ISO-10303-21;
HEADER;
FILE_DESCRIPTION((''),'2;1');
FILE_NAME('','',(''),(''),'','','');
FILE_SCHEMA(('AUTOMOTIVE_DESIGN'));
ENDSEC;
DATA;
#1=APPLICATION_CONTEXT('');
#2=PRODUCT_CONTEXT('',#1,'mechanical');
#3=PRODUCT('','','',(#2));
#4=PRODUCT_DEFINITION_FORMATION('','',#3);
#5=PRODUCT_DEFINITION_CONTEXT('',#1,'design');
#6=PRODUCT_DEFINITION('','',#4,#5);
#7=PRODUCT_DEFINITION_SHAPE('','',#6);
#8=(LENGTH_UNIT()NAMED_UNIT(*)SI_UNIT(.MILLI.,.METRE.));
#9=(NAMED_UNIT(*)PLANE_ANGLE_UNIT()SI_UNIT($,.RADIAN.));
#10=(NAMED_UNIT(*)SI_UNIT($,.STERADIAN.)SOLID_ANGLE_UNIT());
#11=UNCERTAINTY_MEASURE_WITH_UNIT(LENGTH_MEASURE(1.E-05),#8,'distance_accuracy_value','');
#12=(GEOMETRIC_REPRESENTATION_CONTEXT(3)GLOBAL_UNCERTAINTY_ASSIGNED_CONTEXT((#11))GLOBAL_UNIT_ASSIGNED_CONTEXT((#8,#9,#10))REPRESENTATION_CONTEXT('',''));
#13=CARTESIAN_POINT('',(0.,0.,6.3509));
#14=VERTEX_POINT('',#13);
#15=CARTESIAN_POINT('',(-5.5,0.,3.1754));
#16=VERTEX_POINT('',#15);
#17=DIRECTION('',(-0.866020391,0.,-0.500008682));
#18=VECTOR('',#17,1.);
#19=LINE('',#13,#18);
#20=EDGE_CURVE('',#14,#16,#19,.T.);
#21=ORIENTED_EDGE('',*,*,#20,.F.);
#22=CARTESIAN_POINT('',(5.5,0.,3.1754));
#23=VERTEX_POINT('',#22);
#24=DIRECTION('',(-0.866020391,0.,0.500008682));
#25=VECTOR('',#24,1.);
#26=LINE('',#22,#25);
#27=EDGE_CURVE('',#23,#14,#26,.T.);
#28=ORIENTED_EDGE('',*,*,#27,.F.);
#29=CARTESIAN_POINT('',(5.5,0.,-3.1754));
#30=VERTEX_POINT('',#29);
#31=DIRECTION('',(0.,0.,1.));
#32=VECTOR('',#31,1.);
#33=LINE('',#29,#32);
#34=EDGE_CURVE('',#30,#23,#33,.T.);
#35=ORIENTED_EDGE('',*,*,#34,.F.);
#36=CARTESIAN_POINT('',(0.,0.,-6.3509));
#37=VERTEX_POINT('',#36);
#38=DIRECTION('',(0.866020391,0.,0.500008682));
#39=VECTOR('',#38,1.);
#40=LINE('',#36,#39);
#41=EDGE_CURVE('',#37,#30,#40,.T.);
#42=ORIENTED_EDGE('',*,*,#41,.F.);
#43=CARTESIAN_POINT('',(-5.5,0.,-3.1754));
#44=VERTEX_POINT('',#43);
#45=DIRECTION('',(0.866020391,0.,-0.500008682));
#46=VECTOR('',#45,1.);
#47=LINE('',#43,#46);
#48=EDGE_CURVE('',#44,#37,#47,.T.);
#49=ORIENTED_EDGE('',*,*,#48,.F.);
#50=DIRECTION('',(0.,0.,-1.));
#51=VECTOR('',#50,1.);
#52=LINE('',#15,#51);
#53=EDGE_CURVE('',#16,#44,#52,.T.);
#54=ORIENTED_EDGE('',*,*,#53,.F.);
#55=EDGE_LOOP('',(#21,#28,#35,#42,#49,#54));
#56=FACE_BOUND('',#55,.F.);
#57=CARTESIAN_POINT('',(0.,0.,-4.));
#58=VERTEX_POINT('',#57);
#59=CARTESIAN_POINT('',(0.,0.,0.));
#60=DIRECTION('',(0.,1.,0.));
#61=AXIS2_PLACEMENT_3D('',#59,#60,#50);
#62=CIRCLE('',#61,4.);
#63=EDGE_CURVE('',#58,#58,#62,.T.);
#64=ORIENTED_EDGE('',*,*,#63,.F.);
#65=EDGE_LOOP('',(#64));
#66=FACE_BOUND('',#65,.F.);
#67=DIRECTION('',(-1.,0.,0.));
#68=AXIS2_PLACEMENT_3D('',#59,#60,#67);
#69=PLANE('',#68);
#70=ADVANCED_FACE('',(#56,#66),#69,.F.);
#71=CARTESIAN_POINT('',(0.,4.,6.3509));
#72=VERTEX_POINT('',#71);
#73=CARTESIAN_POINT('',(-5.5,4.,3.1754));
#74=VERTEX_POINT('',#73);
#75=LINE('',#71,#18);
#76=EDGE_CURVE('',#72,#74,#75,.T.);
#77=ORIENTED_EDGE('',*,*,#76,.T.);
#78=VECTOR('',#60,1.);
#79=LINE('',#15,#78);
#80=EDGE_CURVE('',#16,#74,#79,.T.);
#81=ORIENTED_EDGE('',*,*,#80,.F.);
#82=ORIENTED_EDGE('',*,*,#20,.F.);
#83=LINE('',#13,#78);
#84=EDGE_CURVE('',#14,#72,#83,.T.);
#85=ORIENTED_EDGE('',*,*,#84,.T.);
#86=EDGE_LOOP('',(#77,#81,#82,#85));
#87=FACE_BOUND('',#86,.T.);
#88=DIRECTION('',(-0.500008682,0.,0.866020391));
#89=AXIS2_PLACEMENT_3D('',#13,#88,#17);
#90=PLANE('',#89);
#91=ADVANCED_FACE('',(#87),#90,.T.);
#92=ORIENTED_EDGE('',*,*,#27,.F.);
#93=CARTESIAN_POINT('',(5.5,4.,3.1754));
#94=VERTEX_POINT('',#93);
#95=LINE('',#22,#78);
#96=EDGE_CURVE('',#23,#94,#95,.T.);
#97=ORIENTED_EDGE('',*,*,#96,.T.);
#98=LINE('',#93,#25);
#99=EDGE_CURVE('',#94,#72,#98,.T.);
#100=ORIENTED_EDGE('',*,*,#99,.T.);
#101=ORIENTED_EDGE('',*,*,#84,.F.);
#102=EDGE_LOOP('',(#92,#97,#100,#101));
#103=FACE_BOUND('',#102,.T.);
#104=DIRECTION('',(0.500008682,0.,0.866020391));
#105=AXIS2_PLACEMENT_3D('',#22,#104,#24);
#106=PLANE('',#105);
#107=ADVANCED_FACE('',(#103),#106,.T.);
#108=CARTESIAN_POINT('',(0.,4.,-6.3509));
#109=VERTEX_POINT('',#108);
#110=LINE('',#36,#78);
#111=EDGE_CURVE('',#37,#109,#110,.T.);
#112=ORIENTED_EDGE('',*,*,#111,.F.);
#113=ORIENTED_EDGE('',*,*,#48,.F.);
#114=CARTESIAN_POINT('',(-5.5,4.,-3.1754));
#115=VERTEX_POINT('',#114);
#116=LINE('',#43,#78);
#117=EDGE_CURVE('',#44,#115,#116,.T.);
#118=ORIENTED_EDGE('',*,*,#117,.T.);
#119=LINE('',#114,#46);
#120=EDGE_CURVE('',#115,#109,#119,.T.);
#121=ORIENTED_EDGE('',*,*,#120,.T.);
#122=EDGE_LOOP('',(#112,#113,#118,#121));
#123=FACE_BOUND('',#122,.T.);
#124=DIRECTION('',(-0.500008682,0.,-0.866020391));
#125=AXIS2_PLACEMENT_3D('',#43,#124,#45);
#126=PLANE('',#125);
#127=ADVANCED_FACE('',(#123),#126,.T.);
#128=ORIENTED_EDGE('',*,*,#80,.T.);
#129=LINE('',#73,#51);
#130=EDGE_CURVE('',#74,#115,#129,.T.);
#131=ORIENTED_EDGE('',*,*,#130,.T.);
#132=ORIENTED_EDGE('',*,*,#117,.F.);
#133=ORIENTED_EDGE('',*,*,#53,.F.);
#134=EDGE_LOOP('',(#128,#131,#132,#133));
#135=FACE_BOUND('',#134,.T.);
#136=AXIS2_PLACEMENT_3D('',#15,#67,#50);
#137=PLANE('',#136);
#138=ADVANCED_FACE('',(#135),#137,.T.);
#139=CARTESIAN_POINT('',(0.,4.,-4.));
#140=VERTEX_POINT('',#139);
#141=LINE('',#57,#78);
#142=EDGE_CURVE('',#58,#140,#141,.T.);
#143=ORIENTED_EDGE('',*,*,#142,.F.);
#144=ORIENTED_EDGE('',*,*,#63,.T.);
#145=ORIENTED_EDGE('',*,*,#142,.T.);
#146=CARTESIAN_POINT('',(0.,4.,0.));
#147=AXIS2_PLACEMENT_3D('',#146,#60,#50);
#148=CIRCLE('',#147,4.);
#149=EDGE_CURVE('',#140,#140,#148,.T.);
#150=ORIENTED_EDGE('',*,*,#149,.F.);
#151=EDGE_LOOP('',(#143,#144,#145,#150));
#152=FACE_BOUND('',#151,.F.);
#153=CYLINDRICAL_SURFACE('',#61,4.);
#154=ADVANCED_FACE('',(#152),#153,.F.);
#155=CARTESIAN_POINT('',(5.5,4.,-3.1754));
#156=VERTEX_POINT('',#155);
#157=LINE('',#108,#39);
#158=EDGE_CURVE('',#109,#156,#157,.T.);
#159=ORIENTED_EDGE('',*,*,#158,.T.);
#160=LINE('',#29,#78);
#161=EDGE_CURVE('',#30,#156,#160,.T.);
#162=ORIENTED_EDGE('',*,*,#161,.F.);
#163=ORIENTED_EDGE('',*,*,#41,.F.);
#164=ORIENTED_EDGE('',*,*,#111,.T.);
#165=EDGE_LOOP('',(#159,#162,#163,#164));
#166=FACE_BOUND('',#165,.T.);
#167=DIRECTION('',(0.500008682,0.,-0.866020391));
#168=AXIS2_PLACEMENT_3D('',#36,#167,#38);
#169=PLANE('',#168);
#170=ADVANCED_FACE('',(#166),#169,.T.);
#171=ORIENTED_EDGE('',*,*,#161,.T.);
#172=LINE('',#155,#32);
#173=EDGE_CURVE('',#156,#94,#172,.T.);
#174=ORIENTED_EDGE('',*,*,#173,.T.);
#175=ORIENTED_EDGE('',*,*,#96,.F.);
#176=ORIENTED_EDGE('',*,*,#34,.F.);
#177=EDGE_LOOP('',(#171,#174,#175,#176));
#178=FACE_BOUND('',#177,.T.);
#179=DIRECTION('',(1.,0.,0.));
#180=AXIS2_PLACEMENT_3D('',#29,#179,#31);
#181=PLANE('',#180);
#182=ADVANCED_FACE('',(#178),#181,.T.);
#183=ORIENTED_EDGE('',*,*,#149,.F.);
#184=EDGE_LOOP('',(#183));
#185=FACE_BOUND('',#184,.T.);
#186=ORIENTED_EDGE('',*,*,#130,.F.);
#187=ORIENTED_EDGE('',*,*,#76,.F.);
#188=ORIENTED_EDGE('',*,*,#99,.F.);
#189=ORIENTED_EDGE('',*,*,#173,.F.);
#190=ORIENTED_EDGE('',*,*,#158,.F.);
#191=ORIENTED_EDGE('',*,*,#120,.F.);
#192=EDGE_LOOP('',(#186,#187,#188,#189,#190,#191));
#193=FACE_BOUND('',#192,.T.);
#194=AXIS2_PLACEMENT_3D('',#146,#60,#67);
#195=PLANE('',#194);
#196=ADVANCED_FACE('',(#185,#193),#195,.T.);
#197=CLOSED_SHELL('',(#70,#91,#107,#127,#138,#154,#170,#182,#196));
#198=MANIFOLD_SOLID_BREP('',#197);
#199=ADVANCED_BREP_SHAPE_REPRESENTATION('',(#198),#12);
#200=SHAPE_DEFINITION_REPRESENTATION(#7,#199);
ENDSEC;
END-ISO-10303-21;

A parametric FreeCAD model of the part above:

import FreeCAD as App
import Part
import Sketcher
from FreeCAD import Vector
Q = App.Units.Quantity

doc = App.newDocument("Part")
params = doc.addObject("Spreadsheet::Sheet", "Params")
for row, (alias, value) in enumerate([
    ("pad1_length", "4 mm"),
    ("sketch2_diameter", "8 mm"),
    ("hole_diameter", "8 mm"),
], start=1):
    params.set(f"A{row}", alias)
    params.set(f"B{row}", "=" + value)
    params.setAlias(f"B{row}", alias)

body = doc.addObject("PartDesign::Body", "Body")

sketch1 = body.newObject("Sketcher::SketchObject", "Sketch")
sketch1.AttachmentSupport = (doc.getObject("XZ_Plane"), [""])
sketch1.MapMode = "FlatFace"
sketch1.addGeometry([
    Part.LineSegment(Vector(0, 6, 0), Vector(6, 3, 0)),
    Part.LineSegment(Vector(6, 3, 0), Vector(6, -3, 0)),
    Part.LineSegment(Vector(6, -3, 0), Vector(0, -6, 0)),
    Part.LineSegment(Vector(0, -6, 0), Vector(-6, -3, 0)),
    Part.LineSegment(Vector(-6, -3, 0), Vector(-6, 3, 0)),
    Part.LineSegment(Vector(-6, 3, 0), Vector(0, 6, 0)),
], False)
sketch1.addConstraint([
    Sketcher.Constraint("Coincident", 0, 2, 1, 1),
    Sketcher.Constraint("Coincident", 1, 2, 2, 1),
    Sketcher.Constraint("Coincident", 2, 2, 3, 1),
    Sketcher.Constraint("Coincident", 3, 2, 4, 1),
    Sketcher.Constraint("Coincident", 4, 2, 5, 1),
    Sketcher.Constraint("Coincident", 5, 2, 0, 1),
    Sketcher.Constraint("Vertical", 1),
    Sketcher.Constraint("Vertical", 4),
    Sketcher.Constraint("Symmetric", 0, 2, 3, 2, -1, 1),
    Sketcher.Constraint("Symmetric", 2, 2, 5, 2, -1, 1),
    Sketcher.Constraint("PointOnObject", 2, 2, -2),
    Sketcher.Constraint("Parallel", 2, 5),
    Sketcher.Constraint("Horizontal", 1, 2, 3, 2),
    Sketcher.Constraint("DistanceX", 3, 2, 1, 2, 11.0),
    Sketcher.Constraint("Angle", 0, Q("-30.0006 deg")),
    Sketcher.Constraint("DistanceY", 1, 2, 1, 1, 6.3508),
])
pad1 = body.newObject("PartDesign::Pad", "Pad")
pad1.Profile = sketch1
pad1.setExpression("Length", "Params.pad1_length")
pad1.Reversed = True

sketch2 = body.newObject("Sketcher::SketchObject", "Sketch001")
sketch2.AttachmentSupport = (doc.getObject("XZ_Plane"), [""])
sketch2.MapMode = "FlatFace"
sketch2.addGeometry(Part.Circle(Vector(0, 0, 0), Vector(0, 0, 1), 4), False)
sketch2.addConstraint([
    Sketcher.Constraint("Coincident", 0, 3, -1, 1),
    Sketcher.Constraint("Diameter", 0, 8.0),
])
sketch2.setExpression("Constraints[1]", "Params.sketch2_diameter")
doc.recompute()
hole = body.newObject("PartDesign::Hole", "Hole")
hole.Profile = sketch2
hole.ThreadType = "None"
hole.setExpression("Diameter", "Params.hole_diameter")
hole.DepthType = "ThroughAll"

doc.recompute()
